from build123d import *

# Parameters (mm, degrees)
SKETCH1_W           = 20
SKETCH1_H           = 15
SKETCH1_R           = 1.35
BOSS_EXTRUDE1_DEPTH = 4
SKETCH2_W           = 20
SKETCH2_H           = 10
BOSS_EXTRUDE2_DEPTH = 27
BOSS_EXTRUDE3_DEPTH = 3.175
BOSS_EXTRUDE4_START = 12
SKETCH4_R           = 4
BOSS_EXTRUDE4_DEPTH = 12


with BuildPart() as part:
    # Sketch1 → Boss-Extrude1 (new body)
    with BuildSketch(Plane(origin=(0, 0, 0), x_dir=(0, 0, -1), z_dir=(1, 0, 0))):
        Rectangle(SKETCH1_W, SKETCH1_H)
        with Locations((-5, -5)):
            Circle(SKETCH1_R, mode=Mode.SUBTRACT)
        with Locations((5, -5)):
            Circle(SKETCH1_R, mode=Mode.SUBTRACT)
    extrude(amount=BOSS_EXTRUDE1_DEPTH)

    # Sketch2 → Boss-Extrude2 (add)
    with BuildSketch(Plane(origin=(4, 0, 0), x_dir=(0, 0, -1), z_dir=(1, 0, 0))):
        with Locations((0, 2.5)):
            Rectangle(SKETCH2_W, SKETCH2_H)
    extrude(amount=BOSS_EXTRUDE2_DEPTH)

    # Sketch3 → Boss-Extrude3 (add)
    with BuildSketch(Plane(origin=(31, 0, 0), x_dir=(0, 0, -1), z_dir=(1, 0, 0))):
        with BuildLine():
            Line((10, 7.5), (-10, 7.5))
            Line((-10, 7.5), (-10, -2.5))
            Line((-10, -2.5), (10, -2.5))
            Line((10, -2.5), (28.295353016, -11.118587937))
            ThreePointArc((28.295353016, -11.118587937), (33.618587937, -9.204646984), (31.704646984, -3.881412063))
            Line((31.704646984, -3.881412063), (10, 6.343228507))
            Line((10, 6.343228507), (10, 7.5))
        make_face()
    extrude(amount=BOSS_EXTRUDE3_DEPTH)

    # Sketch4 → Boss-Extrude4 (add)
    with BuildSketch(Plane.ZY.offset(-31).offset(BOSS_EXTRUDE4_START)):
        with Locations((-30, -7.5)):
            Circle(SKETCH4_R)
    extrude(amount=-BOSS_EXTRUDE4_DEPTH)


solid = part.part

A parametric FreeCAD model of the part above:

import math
import FreeCAD as App
import Part
import Sketcher

V = App.Vector
Q = App.Units.Quantity


def add_polygon(sketch, points):
    """Adds a closed chain of lines whose ends are joined by coincident constraints."""
    first, n = sketch.GeometryCount, len(points)
    for a, b in zip(points, points[1:] + points[:1]):
        sketch.addGeometry(Part.LineSegment(App.Vector(*a, 0), App.Vector(*b, 0)), False)
    for i in range(n):
        sketch.addConstraint(Sketcher.Constraint("Coincident", first + i, 2, first + (i + 1) % n, 1))

doc = App.newDocument("Part")
body = doc.addObject("PartDesign::Body", "Body")

# Sketch on YZ plane
sketch1 = doc.addObject("Sketcher::SketchObject", "Sketch")
body.addObject(sketch1)
sketch1.AttachmentSupport = (doc.YZ_Plane, [""])
sketch1.MapMode = "FlatFace"
add_polygon(sketch1, [(7.5, 10), (-7.5, 10), (-7.5, -10), (7.5, -10)])  # lines 0-3
sketch1.addGeometry(Part.Circle(V(-5, 5, 0), V(0, 0, 1), 1.4), False)  # 4
sketch1.addGeometry(Part.Circle(V(-5, -5, 0), V(0, 0, 1), 1.4), False)  # 5
sketch1.addConstraint(Sketcher.Constraint("Horizontal", 0))
sketch1.addConstraint(Sketcher.Constraint("Vertical", 1))
sketch1.addConstraint(Sketcher.Constraint("Horizontal", 2))
sketch1.addConstraint(Sketcher.Constraint("Vertical", 3))
sketch1.addConstraint(Sketcher.Constraint("Equal", 4, 5))
sketch1.addConstraint(Sketcher.Constraint("Symmetric", 0, 2, 2, 2, -1, 1))
sketch1.addConstraint(Sketcher.Constraint("Symmetric", 4, 3, 5, 3, -1))
sketch1.addConstraint(Sketcher.Constraint("Diameter", 4, Q("2.7 mm")))
sketch1.addConstraint(Sketcher.Constraint("DistanceX", 0, 2, 0, 1, Q("15 mm")))
sketch1.addConstraint(Sketcher.Constraint("DistanceY", 1, 2, 1, 1, Q("20 mm")))
sketch1.addConstraint(Sketcher.Constraint("DistanceX", 4, 3, -1, 1, Q("5 mm")))
sketch1.addConstraint(Sketcher.Constraint("DistanceY", -1, 1, 4, 3, Q("5 mm")))
pad1 = doc.addObject("PartDesign::Pad", "Pad")
body.addObject(pad1)
pad1.Profile = sketch1
pad1.Length = 4

# Sketch on YZ plane
sketch2 = doc.addObject("Sketcher::SketchObject", "Sketch001")
body.addObject(sketch2)
sketch2.AttachmentSupport = (doc.YZ_Plane, [""])
sketch2.MapMode = "FlatFace"
sketch2.AttachmentOffset = App.Placement(V(0, 0, 4), App.Rotation())
add_polygon(sketch2, [(8, 10), (-2, 10), (-2, -10), (8, -10)])  # lines 0-3
sketch2.addConstraint(Sketcher.Constraint("Horizontal", 0))
sketch2.addConstraint(Sketcher.Constraint("Vertical", 1))
sketch2.addConstraint(Sketcher.Constraint("Horizontal", 2))
sketch2.addConstraint(Sketcher.Constraint("Vertical", 3))
sketch2.addConstraint(Sketcher.Constraint("DistanceX", 0, 2, 0, 1, Q("10 mm")))
sketch2.addConstraint(Sketcher.Constraint("DistanceY", 1, 2, 1, 1, Q("20 mm")))
sketch2.addConstraint(Sketcher.Constraint("DistanceY", -1, 1, 0, 2, Q("10 mm")))
sketch2.addConstraint(Sketcher.Constraint("DistanceX", 0, 2, -1, 1, Q("2.5 mm")))
pad2 = doc.addObject("PartDesign::Pad", "Pad001")
body.addObject(pad2)
pad2.Profile = sketch2
pad2.Length = 27

# Sketch on YZ plane
sketch3 = doc.addObject("Sketcher::SketchObject", "Sketch002")
body.addObject(sketch3)
sketch3.AttachmentSupport = (doc.YZ_Plane, [""])
sketch3.MapMode = "FlatFace"
sketch3.AttachmentOffset = App.Placement(V(0, 0, 31), App.Rotation())
sketch3.addGeometry(Part.LineSegment(V(7.5, -10, 0), V(7.5, 10, 0)), False)
sketch3.addGeometry(Part.LineSegment(V(7.5, 10, 0), V(-2.5, 10, 0)), False)
sketch3.addGeometry(Part.LineSegment(V(-2.5, 10, 0), V(-2.5, -10, 0)), False)
sketch3.addGeometry(Part.LineSegment(V(-2.5, -10, 0), V(-11.1, -28.3, 0)), False)
sketch3.addGeometry(Part.ArcOfCircle(Part.Circle(V(-7.5, -30, 0), V(0, 0, 1), 4), math.radians(155), math.radians(335)), False)
sketch3.addGeometry(Part.LineSegment(V(-3.9, -31.7, 0), V(6.3, -10, 0)), False)
sketch3.addGeometry(Part.LineSegment(V(6.3, -10, 0), V(7.5, -10, 0)), False)
sketch3.addConstraint(Sketcher.Constraint("Coincident", 0, 2, 1, 1))
sketch3.addConstraint(Sketcher.Constraint("Coincident", 1, 2, 2, 1))
sketch3.addConstraint(Sketcher.Constraint("Coincident", 2, 2, 3, 1))
sketch3.addConstraint(Sketcher.Constraint("Tangent", 3, 2, 4, 1))
sketch3.addConstraint(Sketcher.Constraint("Tangent", 4, 2, 5, 1))
sketch3.addConstraint(Sketcher.Constraint("Coincident", 5, 2, 6, 1))
sketch3.addConstraint(Sketcher.Constraint("Coincident", 6, 2, 0, 1))
sketch3.addConstraint(Sketcher.Constraint("Vertical", 0))
sketch3.addConstraint(Sketcher.Constraint("Horizontal", 1))
sketch3.addConstraint(Sketcher.Constraint("Vertical", 2))
sketch3.addConstraint(Sketcher.Constraint("Horizontal", 6))
sketch3.addConstraint(Sketcher.Constraint("Parallel", 3, 5))
sketch3.addConstraint(Sketcher.Constraint("Horizontal", 2, 2, 5, 2))
sketch3.addConstraint(Sketcher.Constraint("Radius", 4, Q("4 mm")))
sketch3.addConstraint(Sketcher.Constraint("DistanceX", 1, 2, 1, 1, Q("10 mm")))
sketch3.addConstraint(Sketcher.Constraint("DistanceY", 0, 1, 0, 2, Q("20 mm")))
sketch3.addConstraint(Sketcher.Constraint("DistanceY", 4, 3, -1, 1, Q("30 mm")))
sketch3.addConstraint(Sketcher.Constraint("DistanceY", -1, 1, 0, 2, Q("10 mm")))
sketch3.addConstraint(Sketcher.Constraint("DistanceX", 4, 3, 0, 2, Q("15 mm")))
sketch3.addConstraint(Sketcher.Constraint("DistanceX", 4, 3, -1, 1, Q("7.5 mm")))
pad3 = doc.addObject("PartDesign::Pad", "Pad002")
body.addObject(pad3)
pad3.Profile = sketch3
pad3.Length = 3.175

# Sketch on YZ plane
sketch4 = doc.addObject("Sketcher::SketchObject", "Sketch003")
body.addObject(sketch4)
sketch4.AttachmentSupport = (doc.YZ_Plane, [""])
sketch4.MapMode = "FlatFace"
sketch4.AttachmentOffset = App.Placement(V(0, 0, 19), App.Rotation())
sketch4.addGeometry(Part.Circle(V(-7.5, -30, 0), V(0, 0, 1), 4), False)
sketch4.addConstraint(Sketcher.Constraint("Diameter", 0, Q("8 mm")))
sketch4.addConstraint(Sketcher.Constraint("DistanceY", 0, 3, -1, 1, Q("30 mm")))
sketch4.addConstraint(Sketcher.Constraint("DistanceX", 0, 3, -1, 1, Q("7.5 mm")))
pad4 = doc.addObject("PartDesign::Pad", "Pad003")
body.addObject(pad4)
pad4.Profile = sketch4
pad4.Length = 12

doc.recompute()
